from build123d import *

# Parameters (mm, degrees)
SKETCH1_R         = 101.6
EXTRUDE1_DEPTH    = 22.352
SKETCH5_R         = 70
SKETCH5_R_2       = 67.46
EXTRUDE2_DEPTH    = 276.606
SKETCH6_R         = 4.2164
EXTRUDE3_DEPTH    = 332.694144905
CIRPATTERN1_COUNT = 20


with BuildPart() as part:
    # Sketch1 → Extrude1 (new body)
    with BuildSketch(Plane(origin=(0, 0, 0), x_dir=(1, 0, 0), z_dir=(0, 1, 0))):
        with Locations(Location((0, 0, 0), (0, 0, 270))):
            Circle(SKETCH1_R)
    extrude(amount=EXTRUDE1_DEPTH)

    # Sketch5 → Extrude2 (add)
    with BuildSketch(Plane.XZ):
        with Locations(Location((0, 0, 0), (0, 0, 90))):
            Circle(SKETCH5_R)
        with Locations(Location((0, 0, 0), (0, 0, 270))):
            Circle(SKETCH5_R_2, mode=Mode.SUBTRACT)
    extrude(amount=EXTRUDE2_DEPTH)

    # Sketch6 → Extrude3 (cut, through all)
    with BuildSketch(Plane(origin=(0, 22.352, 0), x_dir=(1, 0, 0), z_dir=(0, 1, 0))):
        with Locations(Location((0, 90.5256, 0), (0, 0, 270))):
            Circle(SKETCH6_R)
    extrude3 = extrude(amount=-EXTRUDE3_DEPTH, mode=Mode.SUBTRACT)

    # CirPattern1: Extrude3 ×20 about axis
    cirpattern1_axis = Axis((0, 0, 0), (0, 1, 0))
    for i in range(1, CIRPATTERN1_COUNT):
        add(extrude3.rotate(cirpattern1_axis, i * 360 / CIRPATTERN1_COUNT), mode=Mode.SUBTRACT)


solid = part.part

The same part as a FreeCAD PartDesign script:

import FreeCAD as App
import Part
import Sketcher

V = App.Vector
Q = App.Units.Quantity

doc = App.newDocument("Part")
body = doc.addObject("PartDesign::Body", "Body")

# Sketch on XZ plane
sketch1 = body.newObject("Sketcher::SketchObject", "Sketch")
sketch1.AttachmentSupport = (doc.getObject("XZ_Plane"), [""])
sketch1.MapMode = "FlatFace"
sketch1.addGeometry(Part.Circle(V(0, 0, 0), V(0, 0, 1), 102), False)
sketch1.addConstraint([
    Sketcher.Constraint("Coincident", 0, 3, -1, 1),
    Sketcher.Constraint("Diameter", 0, Q("8 in")),
])
pad1 = body.newObject("PartDesign::Pad", "Pad")
pad1.Profile = sketch1
pad1.Length = Q("0.88 in")
pad1.Reversed = True

# Sketch on XZ plane
sketch2 = body.newObject("Sketcher::SketchObject", "Sketch001")
sketch2.AttachmentSupport = (doc.getObject("XZ_Plane"), [""])
sketch2.MapMode = "FlatFace"
sketch2.addGeometry([
    Part.Circle(V(0, 0, 0), V(0, 0, 1), 70),
    Part.Circle(V(0, 0, 0), V(0, 0, 1), 67),
], False)
sketch2.addConstraint([
    Sketcher.Constraint("Coincident", 0, 3, -1, 1),
    Sketcher.Constraint("Coincident", 1, 3, -1, 1),
    Sketcher.Constraint("Diameter", 0, Q("140 mm")),
    Sketcher.Constraint("Diameter", 1, Q("134.92 mm")),
])
pad2 = body.newObject("PartDesign::Pad", "Pad001")
pad2.Profile = sketch2
pad2.Length = Q("10.89 in")

# Sketch on XZ plane
sketch3 = body.newObject("Sketcher::SketchObject", "Sketch002")
sketch3.AttachmentSupport = (doc.getObject("XZ_Plane"), [""])
sketch3.MapMode = "FlatFace"
sketch3.AttachmentOffset = App.Placement(V(0, 0, -0.88 * 25.4), App.Rotation())
sketch3.addGeometry(Part.Circle(V(0, -90.5, 0), V(0, 0, 1), 4.2), False)
sketch3.addConstraint([
    Sketcher.Constraint("PointOnObject", 0, 3, -2),
    Sketcher.Constraint("Diameter", 0, Q("0.332 in")),
    Sketcher.Constraint("DistanceY", 0, 3, -1, 1, Q("3.564 in")),
])
pocket1 = body.newObject("PartDesign::Pocket", "Pocket")
pocket1.Profile = sketch3
pocket1.Type = "ThroughAll"
pocket1.Reversed = True
doc.recompute()

polarpattern = body.newObject("PartDesign::PolarPattern", "PolarPattern")
polarpattern.Originals = [pocket1]
polarpattern.Axis = (doc.getObject("Y_Axis"), [""])
polarpattern.Angle = 360
polarpattern.Occurrences = 20
body.Tip = polarpattern

doc.recompute()
